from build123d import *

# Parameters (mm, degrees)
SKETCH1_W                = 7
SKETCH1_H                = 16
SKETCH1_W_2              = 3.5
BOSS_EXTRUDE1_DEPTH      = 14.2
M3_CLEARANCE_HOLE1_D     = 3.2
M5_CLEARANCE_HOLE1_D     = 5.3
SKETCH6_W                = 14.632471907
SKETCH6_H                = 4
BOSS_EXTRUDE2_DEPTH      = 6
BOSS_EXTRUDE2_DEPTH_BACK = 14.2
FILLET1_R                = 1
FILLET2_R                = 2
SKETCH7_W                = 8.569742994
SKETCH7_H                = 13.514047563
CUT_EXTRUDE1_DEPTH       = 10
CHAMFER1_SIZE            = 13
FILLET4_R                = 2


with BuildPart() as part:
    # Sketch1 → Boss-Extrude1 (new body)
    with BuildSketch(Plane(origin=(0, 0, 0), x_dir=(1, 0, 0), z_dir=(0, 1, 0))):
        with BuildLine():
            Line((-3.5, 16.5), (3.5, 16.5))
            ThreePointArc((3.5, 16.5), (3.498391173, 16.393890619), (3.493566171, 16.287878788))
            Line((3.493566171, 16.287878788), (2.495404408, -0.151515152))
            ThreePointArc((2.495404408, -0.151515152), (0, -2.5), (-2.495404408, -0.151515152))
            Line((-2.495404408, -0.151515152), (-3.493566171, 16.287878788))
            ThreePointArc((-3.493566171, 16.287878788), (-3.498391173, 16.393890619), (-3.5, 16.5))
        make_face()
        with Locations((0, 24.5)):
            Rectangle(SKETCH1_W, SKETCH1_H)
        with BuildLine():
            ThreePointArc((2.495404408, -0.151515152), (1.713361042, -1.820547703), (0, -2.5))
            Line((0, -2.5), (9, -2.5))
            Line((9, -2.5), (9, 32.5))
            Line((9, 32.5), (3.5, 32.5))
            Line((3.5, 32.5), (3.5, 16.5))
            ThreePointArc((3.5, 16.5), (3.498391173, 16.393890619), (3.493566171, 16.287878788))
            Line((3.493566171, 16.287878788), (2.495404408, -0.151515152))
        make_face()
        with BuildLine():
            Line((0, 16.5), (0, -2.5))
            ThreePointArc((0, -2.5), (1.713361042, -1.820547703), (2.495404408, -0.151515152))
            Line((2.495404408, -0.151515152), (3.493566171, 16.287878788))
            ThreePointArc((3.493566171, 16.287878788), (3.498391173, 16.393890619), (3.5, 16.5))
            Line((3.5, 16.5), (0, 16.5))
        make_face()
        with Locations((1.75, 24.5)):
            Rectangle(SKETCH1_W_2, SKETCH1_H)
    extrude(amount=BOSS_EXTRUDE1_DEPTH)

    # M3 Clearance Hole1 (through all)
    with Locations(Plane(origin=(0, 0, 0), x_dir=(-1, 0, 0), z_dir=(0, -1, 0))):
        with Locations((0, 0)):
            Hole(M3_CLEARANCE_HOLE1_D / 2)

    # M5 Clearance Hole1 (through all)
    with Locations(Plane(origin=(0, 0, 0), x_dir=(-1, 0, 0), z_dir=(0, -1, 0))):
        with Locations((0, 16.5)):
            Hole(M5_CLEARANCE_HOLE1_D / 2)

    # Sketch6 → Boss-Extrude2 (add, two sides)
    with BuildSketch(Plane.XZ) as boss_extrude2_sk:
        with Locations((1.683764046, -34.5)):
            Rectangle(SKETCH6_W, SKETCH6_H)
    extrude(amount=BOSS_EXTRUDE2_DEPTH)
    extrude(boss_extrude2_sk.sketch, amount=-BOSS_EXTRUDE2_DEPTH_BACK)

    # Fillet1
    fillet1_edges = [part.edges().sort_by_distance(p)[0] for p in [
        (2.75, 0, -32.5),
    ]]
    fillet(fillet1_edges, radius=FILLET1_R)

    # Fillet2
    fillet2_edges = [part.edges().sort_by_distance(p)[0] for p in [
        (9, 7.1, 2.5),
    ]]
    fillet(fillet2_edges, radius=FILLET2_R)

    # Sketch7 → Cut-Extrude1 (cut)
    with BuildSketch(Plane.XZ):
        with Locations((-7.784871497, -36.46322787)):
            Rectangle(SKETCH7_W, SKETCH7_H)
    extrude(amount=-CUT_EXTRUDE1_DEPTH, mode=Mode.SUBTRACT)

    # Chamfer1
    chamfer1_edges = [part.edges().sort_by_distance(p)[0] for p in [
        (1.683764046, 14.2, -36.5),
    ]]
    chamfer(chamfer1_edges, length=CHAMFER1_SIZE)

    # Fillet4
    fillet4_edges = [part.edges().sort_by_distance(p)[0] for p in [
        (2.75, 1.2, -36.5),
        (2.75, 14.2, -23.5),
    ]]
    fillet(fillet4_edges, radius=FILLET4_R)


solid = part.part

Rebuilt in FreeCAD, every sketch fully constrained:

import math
import FreeCAD as App
import Part
import Sketcher
from FreeCAD import Vector


def edges_at(feature, points):
    """Names of the edges that pass closest to the given points."""
    edges = feature.Shape.Edges
    near = lambda p: min(range(len(edges)), key=lambda i: edges[i].distToShape(Part.Vertex(*p))[0])
    return sorted({f"Edge{near(p) + 1}" for p in points})

doc = App.newDocument("Part")
body = doc.addObject("PartDesign::Body", "Body")

sketch1 = body.newObject("Sketcher::SketchObject", "Sketch")
sketch1.AttachmentSupport = (doc.getObject("XZ_Plane"), [""])
sketch1.MapMode = "FlatFace"
sketch1.addGeometry([
    Part.LineSegment(Vector(0, 2.5, 0), Vector(9, 2.5, 0)),
    Part.LineSegment(Vector(9, 2.5, 0), Vector(9, -32.5, 0)),
    Part.LineSegment(Vector(9, -32.5, 0), Vector(-3.5, -32.5, 0)),
    Part.LineSegment(Vector(-3.5, -32.5, 0), Vector(-3.5, -16.5, 0)),
    Part.ArcOfCircle(Part.Circle(Vector(0, -16.5, 0), Vector(0, 0, 1), 3.5), math.radians(176.525399), math.radians(180)),
    Part.LineSegment(Vector(-3.493566, -16.287879, 0), Vector(-2.495404, 0.151515, 0)),
    Part.ArcOfCircle(Part.Circle(Vector(0, 0, 0), Vector(0, 0, 1), 2.5), math.radians(90), math.radians(176.525399)),
], False)
sketch1.addConstraint([
    Sketcher.Constraint("Coincident", 0, 2, 1, 1),
    Sketcher.Constraint("Coincident", 1, 2, 2, 1),
    Sketcher.Constraint("Coincident", 2, 2, 3, 1),
    Sketcher.Constraint("Tangent", 3, 2, 4, 2),
    Sketcher.Constraint("Tangent", 4, 1, 5, 1),
    Sketcher.Constraint("Tangent", 5, 2, 6, 2),
    Sketcher.Constraint("Tangent", 6, 1, 0, 1),
    Sketcher.Constraint("Horizontal", 0),
    Sketcher.Constraint("Vertical", 1),
    Sketcher.Constraint("Horizontal", 2),
    Sketcher.Constraint("Vertical", 3),
    Sketcher.Constraint("Coincident", 6, 3, -1, 1),
    Sketcher.Constraint("PointOnObject", 4, 3, -2),
    Sketcher.Constraint("Radius", 4, 3.5),
    Sketcher.Constraint("Radius", 6, 2.5),
    Sketcher.Constraint("DistanceX", 0, 1, 0, 2, 9.0),
    Sketcher.Constraint("DistanceY", 1, 2, 1, 1, 35.0),
    Sketcher.Constraint("DistanceY", 3, 1, 3, 2, 16.0),
])
pad1 = body.newObject("PartDesign::Pad", "Pad")
pad1.Profile = sketch1
pad1.Length = 14.2
pad1.Reversed = True

sketch2 = body.newObject("Sketcher::SketchObject", "Sketch001")
sketch2.AttachmentSupport = (doc.getObject("XZ_Plane"), [""])
sketch2.MapMode = "FlatFace"
sketch2.addGeometry(Part.Circle(Vector(0, 0, 0), Vector(0, 0, 1), 1.6), False)
sketch2.addConstraint([
    Sketcher.Constraint("Coincident", 0, 3, -1, 1),
    Sketcher.Constraint("Diameter", 0, 3.2),
])
doc.recompute()
hole = body.newObject("PartDesign::Hole", "Hole")
hole.Profile = sketch2
hole.ThreadType = "None"
hole.Diameter = 3.2
hole.DepthType = "ThroughAll"

sketch3 = body.newObject("Sketcher::SketchObject", "Sketch002")
sketch3.AttachmentSupport = (doc.getObject("XZ_Plane"), [""])
sketch3.MapMode = "FlatFace"
sketch3.addGeometry(Part.Circle(Vector(0, -16.5, 0), Vector(0, 0, 1), 2.65), False)
sketch3.addConstraint([
    Sketcher.Constraint("PointOnObject", 0, 3, -2),
    Sketcher.Constraint("Diameter", 0, 5.3),
    Sketcher.Constraint("DistanceY", 0, 3, -1, 1, 16.5),
])
doc.recompute()
hole2 = body.newObject("PartDesign::Hole", "Hole001")
hole2.Profile = sketch3
hole2.ThreadType = "None"
hole2.Diameter = 5.3
hole2.DepthType = "ThroughAll"

sketch4 = body.newObject("Sketcher::SketchObject", "Sketch003")
sketch4.AttachmentSupport = (doc.getObject("XZ_Plane"), [""])
sketch4.MapMode = "FlatFace"
sketch4.addGeometry([
    Part.LineSegment(Vector(-5.632472, -32.5, 0), Vector(-5.632472, -36.5, 0)),
    Part.LineSegment(Vector(-5.632472, -36.5, 0), Vector(9, -36.5, 0)),
    Part.LineSegment(Vector(9, -36.5, 0), Vector(9, -32.5, 0)),
    Part.LineSegment(Vector(9, -32.5, 0), Vector(-5.632472, -32.5, 0)),
], False)
sketch4.addConstraint([
    Sketcher.Constraint("Coincident", 0, 2, 1, 1),
    Sketcher.Constraint("Coincident", 1, 2, 2, 1),
    Sketcher.Constraint("Coincident", 2, 2, 3, 1),
    Sketcher.Constraint("Coincident", 3, 2, 0, 1),
    Sketcher.Constraint("Vertical", 0),
    Sketcher.Constraint("Horizontal", 1),
    Sketcher.Constraint("Vertical", 2),
    Sketcher.Constraint("Horizontal", 3),
    Sketcher.Constraint("DistanceY", 0, 2, 0, 1, 4.0),
    Sketcher.Constraint("DistanceX", -1, 1, 1, 2, 9.0),
    Sketcher.Constraint("DistanceY", 0, 2, -1, 1, 36.5),
    Sketcher.Constraint("DistanceX", 1, 1, 1, 2, 14.632472),
])
pad2 = body.newObject("PartDesign::Pad", "Pad001")
pad2.Profile = sketch4
pad2.Type = "TwoLengths"
pad2.Length = 6
pad2.Length2 = 14.2
doc.recompute()

fillet = body.newObject("PartDesign::Fillet", "Fillet")
fillet.Base = (pad2, edges_at(pad2, [(2.75, 0, -32.5)]))
fillet.Radius = 1
doc.recompute()

fillet2 = body.newObject("PartDesign::Fillet", "Fillet001")
fillet2.Base = (fillet, edges_at(fillet, [(9, 7.1, 2.5)]))
fillet2.Radius = 2

sketch5 = body.newObject("Sketcher::SketchObject", "Sketch004")
sketch5.AttachmentSupport = (doc.getObject("XZ_Plane"), [""])
sketch5.MapMode = "FlatFace"
sketch5.addGeometry([
    Part.LineSegment(Vector(-12.069743, -29.706204, 0), Vector(-12.069743, -43.220252, 0)),
    Part.LineSegment(Vector(-12.069743, -43.220252, 0), Vector(-3.5, -43.220252, 0)),
    Part.LineSegment(Vector(-3.5, -43.220252, 0), Vector(-3.5, -29.706204, 0)),
    Part.LineSegment(Vector(-3.5, -29.706204, 0), Vector(-12.069743, -29.706204, 0)),
], False)
sketch5.addConstraint([
    Sketcher.Constraint("Coincident", 0, 2, 1, 1),
    Sketcher.Constraint("Coincident", 1, 2, 2, 1),
    Sketcher.Constraint("Coincident", 2, 2, 3, 1),
    Sketcher.Constraint("Coincident", 3, 2, 0, 1),
    Sketcher.Constraint("Vertical", 0),
    Sketcher.Constraint("Horizontal", 1),
    Sketcher.Constraint("Vertical", 2),
    Sketcher.Constraint("Horizontal", 3),
    Sketcher.Constraint("DistanceX", 1, 2, -1, 1, 3.5),
    Sketcher.Constraint("DistanceX", 1, 1, 1, 2, 8.569743),
    Sketcher.Constraint("DistanceY", 0, 2, 0, 1, 13.514048),
    Sketcher.Constraint("DistanceY", 0, 2, -1, 1, 43.220252),
])
pocket1 = body.newObject("PartDesign::Pocket", "Pocket")
pocket1.Profile = sketch5
pocket1.Length = 10
doc.recompute()

chamfer = body.newObject("PartDesign::Chamfer", "Chamfer")
chamfer.Base = (pocket1, edges_at(pocket1, [(1.684, 14.2, -36.5)]))
chamfer.Size = 13
doc.recompute()

fillet3 = body.newObject("PartDesign::Fillet", "Fillet002")
fillet3.Base = (chamfer, edges_at(chamfer, [(2.75, 1.2, -36.5), (2.75, 14.2, -23.5)]))
fillet3.Radius = 2

doc.recompute()
